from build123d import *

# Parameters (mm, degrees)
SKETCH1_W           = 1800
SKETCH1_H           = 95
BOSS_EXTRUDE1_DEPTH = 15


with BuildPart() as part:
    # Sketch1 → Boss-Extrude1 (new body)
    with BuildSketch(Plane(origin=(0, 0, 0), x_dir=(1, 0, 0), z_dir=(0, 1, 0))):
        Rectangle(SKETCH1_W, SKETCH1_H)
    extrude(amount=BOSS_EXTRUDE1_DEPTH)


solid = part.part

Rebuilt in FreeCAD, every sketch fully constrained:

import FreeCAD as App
import Part
import Sketcher
from FreeCAD import Vector
Q = App.Units.Quantity

doc = App.newDocument("Part")
body = doc.addObject("PartDesign::Body", "Body")

# Sketch on XZ plane
sketch1 = doc.addObject("Sketcher::SketchObject", "Sketch")
body.addObject(sketch1)
sketch1.AttachmentSupport = (doc.XZ_Plane, [""])
sketch1.MapMode = "FlatFace"
sketch1.addGeometry([
    Part.LineSegment(Vector(-900, -48, 0), Vector(-900, 48, 0)),
    Part.LineSegment(Vector(-900, 48, 0), Vector(900, 48, 0)),
    Part.LineSegment(Vector(900, 48, 0), Vector(900, -48, 0)),
    Part.LineSegment(Vector(900, -48, 0), Vector(-900, -48, 0)),
], False)
sketch1.addConstraint([
    Sketcher.Constraint("Coincident", 0, 2, 1, 1),
    Sketcher.Constraint("Coincident", 1, 2, 2, 1),
    Sketcher.Constraint("Coincident", 2, 2, 3, 1),
    Sketcher.Constraint("Coincident", 3, 2, 0, 1),
    Sketcher.Constraint("Vertical", 0),
    Sketcher.Constraint("Horizontal", 1),
    Sketcher.Constraint("Vertical", 2),
    Sketcher.Constraint("Horizontal", 3),
    Sketcher.Constraint("Symmetric", 0, 2, 2, 2, -1, 1),
    Sketcher.Constraint("DistanceX", 1, 1, 1, 2, Q("1800 mm")),
    Sketcher.Constraint("DistanceY", 0, 1, 0, 2, Q("95 mm")),
])
pad1 = doc.addObject("PartDesign::Pad", "Pad")
body.addObject(pad1)
pad1.Profile = sketch1
pad1.Length = 15
pad1.Reversed = True

doc.recompute()
